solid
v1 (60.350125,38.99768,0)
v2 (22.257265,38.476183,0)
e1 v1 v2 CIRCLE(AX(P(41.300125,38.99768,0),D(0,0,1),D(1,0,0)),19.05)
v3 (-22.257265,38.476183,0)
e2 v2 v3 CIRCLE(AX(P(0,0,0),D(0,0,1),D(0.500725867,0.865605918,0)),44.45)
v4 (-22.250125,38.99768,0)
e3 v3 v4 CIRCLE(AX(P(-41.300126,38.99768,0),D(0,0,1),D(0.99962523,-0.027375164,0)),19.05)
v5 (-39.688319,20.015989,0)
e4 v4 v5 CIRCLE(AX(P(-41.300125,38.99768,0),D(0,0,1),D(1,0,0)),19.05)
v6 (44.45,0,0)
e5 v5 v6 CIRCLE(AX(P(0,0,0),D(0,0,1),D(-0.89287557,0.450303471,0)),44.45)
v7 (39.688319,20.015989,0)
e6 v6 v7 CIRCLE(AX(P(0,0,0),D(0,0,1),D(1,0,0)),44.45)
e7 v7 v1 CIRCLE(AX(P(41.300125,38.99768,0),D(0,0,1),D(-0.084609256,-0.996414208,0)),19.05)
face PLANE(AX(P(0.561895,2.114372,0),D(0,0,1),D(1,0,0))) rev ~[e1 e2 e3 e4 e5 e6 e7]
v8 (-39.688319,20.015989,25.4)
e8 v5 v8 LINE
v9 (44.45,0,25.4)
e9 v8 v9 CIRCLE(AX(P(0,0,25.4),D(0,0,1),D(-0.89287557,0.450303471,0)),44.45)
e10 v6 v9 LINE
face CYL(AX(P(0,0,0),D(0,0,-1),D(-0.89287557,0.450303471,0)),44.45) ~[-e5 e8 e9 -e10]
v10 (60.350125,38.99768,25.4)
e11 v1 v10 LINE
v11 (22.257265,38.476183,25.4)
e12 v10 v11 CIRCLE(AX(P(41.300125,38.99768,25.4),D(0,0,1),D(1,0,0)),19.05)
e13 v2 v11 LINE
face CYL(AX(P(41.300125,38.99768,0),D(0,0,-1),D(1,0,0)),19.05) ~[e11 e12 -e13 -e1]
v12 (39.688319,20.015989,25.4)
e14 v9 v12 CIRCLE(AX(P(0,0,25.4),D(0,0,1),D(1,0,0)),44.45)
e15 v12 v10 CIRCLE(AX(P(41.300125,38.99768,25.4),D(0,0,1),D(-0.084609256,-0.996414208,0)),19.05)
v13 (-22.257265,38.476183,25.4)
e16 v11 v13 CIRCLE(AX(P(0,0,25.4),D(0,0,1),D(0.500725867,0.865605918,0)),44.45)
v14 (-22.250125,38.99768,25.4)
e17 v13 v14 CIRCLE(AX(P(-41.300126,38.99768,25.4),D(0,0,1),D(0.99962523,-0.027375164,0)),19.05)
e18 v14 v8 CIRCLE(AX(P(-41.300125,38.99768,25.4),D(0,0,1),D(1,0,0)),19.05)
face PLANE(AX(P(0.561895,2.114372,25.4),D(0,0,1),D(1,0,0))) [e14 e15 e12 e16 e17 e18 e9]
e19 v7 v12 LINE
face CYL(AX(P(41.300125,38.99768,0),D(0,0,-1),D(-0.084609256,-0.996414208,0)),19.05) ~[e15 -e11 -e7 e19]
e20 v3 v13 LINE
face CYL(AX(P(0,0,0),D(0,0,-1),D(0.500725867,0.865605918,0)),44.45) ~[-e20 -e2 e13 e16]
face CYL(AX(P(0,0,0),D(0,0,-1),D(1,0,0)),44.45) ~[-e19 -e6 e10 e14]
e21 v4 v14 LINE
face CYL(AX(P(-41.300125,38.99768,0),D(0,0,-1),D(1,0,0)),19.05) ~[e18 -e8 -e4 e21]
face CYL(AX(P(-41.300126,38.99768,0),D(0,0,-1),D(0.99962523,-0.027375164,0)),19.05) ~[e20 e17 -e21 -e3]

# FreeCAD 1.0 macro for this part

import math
import FreeCAD as App
import Part
import Sketcher
Q = App.Units.Quantity

doc = App.newDocument("Part")
body = doc.addObject("PartDesign::Body", "Body")

# Sketch on XY plane
sketch1 = body.newObject("Sketcher::SketchObject", "Sketch")
sketch1.AttachmentSupport = (doc.getObject("XY_Plane"), [""])
sketch1.MapMode = "FlatFace"
sketch1.addGeometry([
    Part.ArcOfCircle(Part.Circle(App.Vector(0, 0, 0), App.Vector(0, 0, 1), 44.5), math.radians(153), math.radians(360)),  # 0
    Part.ArcOfCircle(Part.Circle(App.Vector(0, 0, 0), App.Vector(0, 0, 1), 44.4), math.radians(0), math.radians(27)),  # 1
    Part.ArcOfCircle(Part.Circle(App.Vector(41.3, 39, 0), App.Vector(0, 0, 1), 19.1), math.radians(-95), math.radians(0)),  # 2
    Part.ArcOfCircle(Part.Circle(App.Vector(41.3, 39, 0), App.Vector(0, 0, 1), 19.1), math.radians(0), math.radians(182)),  # 3
    Part.ArcOfCircle(Part.Circle(App.Vector(0, 0, 0), App.Vector(0, 0, 1), 44.5), math.radians(60), math.radians(120)),  # 4
    Part.ArcOfCircle(Part.Circle(App.Vector(-41.3, 39, 0), App.Vector(0, 0, 1), 19.1), math.radians(-1.57), math.radians(0)),  # 5
    Part.ArcOfCircle(Part.Circle(App.Vector(-41.3, 39, 0), App.Vector(0, 0, 1), 19.1), math.radians(0), math.radians(275)),  # 6
], False)
sketch1.addConstraint([
    Sketcher.Constraint("Tangent", 0, 2, 1, 1),
    Sketcher.Constraint("Coincident", 1, 2, 2, 1),
    Sketcher.Constraint("Tangent", 2, 2, 3, 1),
    Sketcher.Constraint("Coincident", 3, 2, 4, 1),
    Sketcher.Constraint("Coincident", 4, 2, 5, 1),
    Sketcher.Constraint("Tangent", 5, 2, 6, 1),
    Sketcher.Constraint("Coincident", 6, 2, 0, 1),
    Sketcher.Constraint("Coincident", 0, 3, -1, 1),
    Sketcher.Constraint("Coincident", 4, 3, -1, 1),
    Sketcher.Constraint("Equal", 0, 1),
    Sketcher.Constraint("Equal", 2, 3),
    Sketcher.Constraint("Equal", 1, 4),
    Sketcher.Constraint("Equal", 3, 5),
    Sketcher.Constraint("Equal", 5, 6),
    Sketcher.Constraint("Symmetric", 2, 3, 5, 3, -2),
    Sketcher.Constraint("PointOnObject", 0, 2, -1),
    Sketcher.Constraint("Horizontal", 6, 3, 2, 2),
    Sketcher.Constraint("Horizontal", 2, 2, 5, 2),
    Sketcher.Constraint("Radius", 0, Q("1.75 in")),
    Sketcher.Constraint("Radius", 2, Q("0.75 in")),
    Sketcher.Constraint("DistanceY", -1, 1, 2, 3, 38.99768),
    Sketcher.Constraint("DistanceY", -1, 1, 6, 2, 20.015989),
])
pad1 = body.newObject("PartDesign::Pad", "Pad")
pad1.Profile = sketch1
pad1.Length = Q("1 in")

doc.recompute()
